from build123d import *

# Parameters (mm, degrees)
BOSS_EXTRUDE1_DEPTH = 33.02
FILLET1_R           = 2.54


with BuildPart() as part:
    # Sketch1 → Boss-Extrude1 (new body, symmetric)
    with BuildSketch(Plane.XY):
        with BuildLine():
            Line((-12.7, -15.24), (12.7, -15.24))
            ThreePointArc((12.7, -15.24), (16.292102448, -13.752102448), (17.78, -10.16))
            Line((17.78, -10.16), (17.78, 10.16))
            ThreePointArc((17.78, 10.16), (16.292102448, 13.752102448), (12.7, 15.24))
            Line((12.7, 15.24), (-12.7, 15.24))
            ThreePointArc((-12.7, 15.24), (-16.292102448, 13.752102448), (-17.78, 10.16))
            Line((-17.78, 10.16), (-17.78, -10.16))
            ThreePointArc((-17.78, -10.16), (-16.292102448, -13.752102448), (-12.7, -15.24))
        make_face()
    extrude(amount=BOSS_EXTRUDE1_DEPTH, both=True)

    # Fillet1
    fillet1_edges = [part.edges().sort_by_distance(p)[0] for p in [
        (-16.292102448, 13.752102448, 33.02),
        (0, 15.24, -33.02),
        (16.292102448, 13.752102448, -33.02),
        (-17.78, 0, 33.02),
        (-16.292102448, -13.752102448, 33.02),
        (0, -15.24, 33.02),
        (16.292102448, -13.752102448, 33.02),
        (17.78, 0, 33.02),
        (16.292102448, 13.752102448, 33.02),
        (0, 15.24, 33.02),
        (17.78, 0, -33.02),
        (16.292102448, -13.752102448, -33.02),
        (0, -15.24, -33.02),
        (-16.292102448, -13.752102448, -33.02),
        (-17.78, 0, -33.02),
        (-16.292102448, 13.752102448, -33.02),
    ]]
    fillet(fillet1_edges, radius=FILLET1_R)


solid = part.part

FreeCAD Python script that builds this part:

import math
import FreeCAD as App
import Part
import Sketcher
Q = App.Units.Quantity


def edges_at(feature, points):
    """Names of the edges that pass closest to the given points."""
    edges = feature.Shape.Edges
    near = lambda p: min(range(len(edges)), key=lambda i: edges[i].distToShape(Part.Vertex(*p))[0])
    return sorted({f"Edge{near(p) + 1}" for p in points})

doc = App.newDocument("Part")
body = doc.addObject("PartDesign::Body", "Body")

sketch1 = body.newObject("Sketcher::SketchObject", "Sketch")
sketch1.AttachmentSupport = (doc.getObject("XY_Plane"), [""])
sketch1.MapMode = "FlatFace"
sketch1.addGeometry([
    Part.LineSegment(App.Vector(-12.7, -15.24, 0), App.Vector(12.7, -15.24, 0)),
    Part.ArcOfCircle(Part.Circle(App.Vector(12.7, -10.16, 0), App.Vector(0, 0, 1), 5.08), math.radians(-90), math.radians(0)),
    Part.LineSegment(App.Vector(17.78, -10.16, 0), App.Vector(17.78, 10.16, 0)),
    Part.ArcOfCircle(Part.Circle(App.Vector(12.7, 10.16, 0), App.Vector(0, 0, 1), 5.08), math.radians(0), math.radians(90)),
    Part.LineSegment(App.Vector(12.7, 15.24, 0), App.Vector(-12.7, 15.24, 0)),
    Part.ArcOfCircle(Part.Circle(App.Vector(-12.7, 10.16, 0), App.Vector(0, 0, 1), 5.08), math.radians(90), math.radians(180)),
    Part.LineSegment(App.Vector(-17.78, 10.16, 0), App.Vector(-17.78, -10.16, 0)),
    Part.ArcOfCircle(Part.Circle(App.Vector(-12.7, -10.16, 0), App.Vector(0, 0, 1), 5.08), math.radians(-180), math.radians(-90)),
], False)
sketch1.addConstraint([
    Sketcher.Constraint("Tangent", 0, 2, 1, 1),
    Sketcher.Constraint("Tangent", 1, 2, 2, 1),
    Sketcher.Constraint("Tangent", 2, 2, 3, 1),
    Sketcher.Constraint("Tangent", 3, 2, 4, 1),
    Sketcher.Constraint("Tangent", 4, 2, 5, 1),
    Sketcher.Constraint("Tangent", 5, 2, 6, 1),
    Sketcher.Constraint("Tangent", 6, 2, 7, 1),
    Sketcher.Constraint("Tangent", 7, 2, 0, 1),
    Sketcher.Constraint("Horizontal", 0),
    Sketcher.Constraint("Vertical", 2),
    Sketcher.Constraint("Horizontal", 4),
    Sketcher.Constraint("Vertical", 6),
    Sketcher.Constraint("Equal", 1, 3),
    Sketcher.Constraint("Equal", 3, 5),
    Sketcher.Constraint("Equal", 5, 7),
    Sketcher.Constraint("Symmetric", 1, 3, 5, 3, -1, 1),
    Sketcher.Constraint("Radius", 1, Q("0.2 in")),
    Sketcher.Constraint("DistanceX", 0, 1, 0, 2, Q("1 in")),
    Sketcher.Constraint("DistanceY", 2, 1, 2, 2, Q("0.8 in")),
])
pad1 = body.newObject("PartDesign::Pad", "Pad")
pad1.Profile = sketch1
pad1.Length = Q("2.6 in")
pad1.Midplane = True
doc.recompute()

fillet = body.newObject("PartDesign::Fillet", "Fillet")
fillet.Base = (pad1, edges_at(pad1, [
    (-16.292, 13.752, 33.02),
    (0, 15.24, -33.02),
    (16.292, 13.752, -33.02),
    (-17.78, 0, 33.02),
    (-16.292, -13.752, 33.02),
    (0, -15.24, 33.02),
    (16.292, -13.752, 33.02),
    (17.78, 0, 33.02),
    (16.292, 13.752, 33.02),
    (0, 15.24, 33.02),
    (17.78, 0, -33.02),
    (16.292, -13.752, -33.02),
    (0, -15.24, -33.02),
    (-16.292, -13.752, -33.02),
    (-17.78, 0, -33.02),
    (-16.292, 13.752, -33.02),
]))
fillet.Radius = Q("0.1 in")

doc.recompute()
